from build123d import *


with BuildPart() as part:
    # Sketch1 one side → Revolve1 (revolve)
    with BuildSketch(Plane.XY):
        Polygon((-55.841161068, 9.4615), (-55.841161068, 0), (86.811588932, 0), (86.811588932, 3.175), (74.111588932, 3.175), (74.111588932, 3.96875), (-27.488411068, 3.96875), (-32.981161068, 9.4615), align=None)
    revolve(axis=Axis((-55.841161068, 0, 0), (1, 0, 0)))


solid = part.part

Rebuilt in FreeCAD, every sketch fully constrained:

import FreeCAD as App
import Part
import Sketcher
Q = App.Units.Quantity

doc = App.newDocument("Part")
body = doc.addObject("PartDesign::Body", "Body")

# Sketch on XY plane
sketch1 = doc.addObject("Sketcher::SketchObject", "Sketch")
body.addObject(sketch1)
sketch1.AttachmentSupport = (doc.XY_Plane, [""])
sketch1.MapMode = "FlatFace"
sketch1.addGeometry([
    Part.LineSegment(App.Vector(-55.8, 9.5, 0), App.Vector(-55.8, 0, 0)),  # 0
    Part.LineSegment(App.Vector(-55.8, 0, 0), App.Vector(86.8, 0, 0)),  # 1
    Part.LineSegment(App.Vector(86.8, 0, 0), App.Vector(86.8, 3.2, 0)),  # 2
    Part.LineSegment(App.Vector(86.8, 3.2, 0), App.Vector(74.1, 3.2, 0)),  # 3
    Part.LineSegment(App.Vector(74.1, 3.2, 0), App.Vector(74.1, 4, 0)),  # 4
    Part.LineSegment(App.Vector(74.1, 4, 0), App.Vector(-27.5, 4, 0)),  # 5
    Part.LineSegment(App.Vector(-27.5, 4, 0), App.Vector(-33, 9.5, 0)),  # 6
    Part.LineSegment(App.Vector(-33, 9.5, 0), App.Vector(-55.8, 9.5, 0)),  # 7
], False)
sketch1.addConstraint([
    Sketcher.Constraint("Coincident", 0, 2, 1, 1),
    Sketcher.Constraint("Coincident", 1, 2, 2, 1),
    Sketcher.Constraint("Coincident", 2, 2, 3, 1),
    Sketcher.Constraint("Coincident", 3, 2, 4, 1),
    Sketcher.Constraint("Coincident", 4, 2, 5, 1),
    Sketcher.Constraint("Coincident", 5, 2, 6, 1),
    Sketcher.Constraint("Coincident", 6, 2, 7, 1),
    Sketcher.Constraint("Coincident", 7, 2, 0, 1),
    Sketcher.Constraint("Vertical", 0),
    Sketcher.Constraint("Horizontal", 1),
    Sketcher.Constraint("Vertical", 2),
    Sketcher.Constraint("Horizontal", 3),
    Sketcher.Constraint("Vertical", 4),
    Sketcher.Constraint("Horizontal", 5),
    Sketcher.Constraint("Horizontal", 7),
    Sketcher.Constraint("PointOnObject", 0, 2, -1),
    Sketcher.Constraint("DistanceX", 5, 2, 5, 1, Q("4 in")),
    Sketcher.Constraint("DistanceX", 3, 2, 3, 1, Q("0.5 in")),
    Sketcher.Constraint("DistanceX", 7, 2, 7, 1, Q("0.9 in")),
    Sketcher.Constraint("Angle", 6, Q("135 deg")),
    Sketcher.Constraint("DistanceY", 2, 1, 2, 2, Q("0.125 in")),
    Sketcher.Constraint("DistanceY", 4, 1, 4, 2, Q("0.03125 in")),
    Sketcher.Constraint("DistanceY", 0, 2, 0, 1, Q("0.3725 in")),
    Sketcher.Constraint("DistanceX", 0, 2, -1, 1, 55.841161),
])
revolution = doc.addObject("PartDesign::Revolution", "Revolution")
body.addObject(revolution)
revolution.Profile = sketch1
revolution.ReferenceAxis = (sketch1, ["H_Axis"])
revolution.Angle = 360

doc.recompute()
